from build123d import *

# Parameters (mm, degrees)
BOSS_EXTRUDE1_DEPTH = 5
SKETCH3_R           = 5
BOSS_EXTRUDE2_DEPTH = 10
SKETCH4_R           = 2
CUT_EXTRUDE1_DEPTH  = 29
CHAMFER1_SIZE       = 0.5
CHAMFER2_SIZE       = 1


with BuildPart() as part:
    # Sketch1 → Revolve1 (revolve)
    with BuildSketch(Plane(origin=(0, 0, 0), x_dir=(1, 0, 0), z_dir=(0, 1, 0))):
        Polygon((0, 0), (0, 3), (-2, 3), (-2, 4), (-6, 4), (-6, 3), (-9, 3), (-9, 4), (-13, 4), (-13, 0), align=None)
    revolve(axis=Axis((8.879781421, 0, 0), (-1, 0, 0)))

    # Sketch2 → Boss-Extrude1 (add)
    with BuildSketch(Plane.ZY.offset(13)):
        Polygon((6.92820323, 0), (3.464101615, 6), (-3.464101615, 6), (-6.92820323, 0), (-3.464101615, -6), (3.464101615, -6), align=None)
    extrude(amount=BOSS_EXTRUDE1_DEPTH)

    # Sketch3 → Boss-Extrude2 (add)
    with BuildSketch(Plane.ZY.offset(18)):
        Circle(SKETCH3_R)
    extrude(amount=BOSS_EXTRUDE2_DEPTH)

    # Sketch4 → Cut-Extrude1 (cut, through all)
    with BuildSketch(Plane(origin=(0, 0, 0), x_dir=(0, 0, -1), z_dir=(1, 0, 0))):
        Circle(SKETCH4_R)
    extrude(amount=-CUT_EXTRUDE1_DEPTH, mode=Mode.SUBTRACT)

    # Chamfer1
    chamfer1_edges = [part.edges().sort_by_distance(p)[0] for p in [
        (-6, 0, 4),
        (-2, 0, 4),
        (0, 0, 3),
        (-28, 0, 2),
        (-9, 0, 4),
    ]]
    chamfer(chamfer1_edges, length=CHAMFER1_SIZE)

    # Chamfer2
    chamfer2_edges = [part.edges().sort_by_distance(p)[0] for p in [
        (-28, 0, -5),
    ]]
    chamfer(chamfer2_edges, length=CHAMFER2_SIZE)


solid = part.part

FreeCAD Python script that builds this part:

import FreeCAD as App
import Part
import Sketcher

V = App.Vector
Q = App.Units.Quantity


def edges_at(feature, points):
    """Names of the edges that pass closest to the given points."""
    edges = feature.Shape.Edges
    near = lambda p: min(range(len(edges)), key=lambda i: edges[i].distToShape(Part.Vertex(*p))[0])
    return sorted({f"Edge{near(p) + 1}" for p in points})

doc = App.newDocument("Part")
params = doc.addObject("Spreadsheet::Sheet", "Params")
for row, (alias, value) in enumerate([
    ("sketch1_width", "2 mm"),
    ("sketch1_width2", "4 mm"),
    ("sketch1_width3", "3 mm"),
    ("revolution_angle", "360 deg"),
    ("pad1_length", "5 mm"),
    ("sketch3_diameter", "10 mm"),
    ("pad2_length", "10 mm"),
    ("sketch4_diameter", "4 mm"),
    ("chamfer_size", "0.5 mm"),
    ("chamfer2_size", "1 mm"),
], start=1):
    params.set(f"A{row}", alias)
    params.set(f"B{row}", "=" + value)
    params.setAlias(f"B{row}", alias)

body = doc.addObject("PartDesign::Body", "Body")

sketch1 = doc.addObject("Sketcher::SketchObject", "Sketch")
body.addObject(sketch1)
sketch1.AttachmentSupport = (doc.XZ_Plane, [""])
sketch1.MapMode = "FlatFace"
sketch1.addGeometry([
    Part.LineSegment(V(0, 0, 0), V(0, -3, 0)),
    Part.LineSegment(V(0, -3, 0), V(-2, -3, 0)),
    Part.LineSegment(V(-2, -3, 0), V(-2, -4, 0)),
    Part.LineSegment(V(-2, -4, 0), V(-6, -4, 0)),
    Part.LineSegment(V(-6, -4, 0), V(-6, -3, 0)),
    Part.LineSegment(V(-6, -3, 0), V(-9, -3, 0)),
    Part.LineSegment(V(-9, -3, 0), V(-9, -4, 0)),
    Part.LineSegment(V(-9, -4, 0), V(-13, -4, 0)),
    Part.LineSegment(V(-13, -4, 0), V(-13, 0, 0)),
    Part.LineSegment(V(-13, 0, 0), V(0, 0, 0)),
], False)
sketch1.addConstraint([
    Sketcher.Constraint("Coincident", 0, 2, 1, 1),
    Sketcher.Constraint("Coincident", 1, 2, 2, 1),
    Sketcher.Constraint("Coincident", 2, 2, 3, 1),
    Sketcher.Constraint("Coincident", 3, 2, 4, 1),
    Sketcher.Constraint("Coincident", 4, 2, 5, 1),
    Sketcher.Constraint("Coincident", 5, 2, 6, 1),
    Sketcher.Constraint("Coincident", 6, 2, 7, 1),
    Sketcher.Constraint("Coincident", 7, 2, 8, 1),
    Sketcher.Constraint("Coincident", 8, 2, 9, 1),
    Sketcher.Constraint("Coincident", 9, 2, 0, 1),
    Sketcher.Constraint("Vertical", 0),
    Sketcher.Constraint("Horizontal", 1),
    Sketcher.Constraint("Vertical", 2),
    Sketcher.Constraint("Horizontal", 3),
    Sketcher.Constraint("Vertical", 4),
    Sketcher.Constraint("Horizontal", 5),
    Sketcher.Constraint("Vertical", 6),
    Sketcher.Constraint("Horizontal", 7),
    Sketcher.Constraint("Vertical", 8),
    Sketcher.Constraint("Horizontal", 9),
    Sketcher.Constraint("Coincident", 9, 2, -1, 1),
    Sketcher.Constraint("Horizontal", 1, 2, 4, 2),
    Sketcher.Constraint("Horizontal", 3, 2, 6, 2),
    Sketcher.Constraint("Equal", 3, 7),
    Sketcher.Constraint("Equal", 5, 0),
    Sketcher.Constraint("Equal", 7, 8),
    Sketcher.Constraint("DistanceX", 1, 2, 1, 1, 2.0),
    Sketcher.Constraint("DistanceX", 3, 2, 3, 1, 4.0),
    Sketcher.Constraint("DistanceX", 5, 2, 5, 1, 3.0),
])
sketch1.setExpression("Constraints[26]", "Params.sketch1_width")
sketch1.setExpression("Constraints[27]", "Params.sketch1_width2")
sketch1.setExpression("Constraints[28]", "Params.sketch1_width3")
revolution = doc.addObject("PartDesign::Revolution", "Revolution")
body.addObject(revolution)
revolution.Profile = sketch1
revolution.ReferenceAxis = (sketch1, ["H_Axis"])
revolution.setExpression("Angle", "Params.revolution_angle")

sketch2 = doc.addObject("Sketcher::SketchObject", "Sketch001")
body.addObject(sketch2)
sketch2.AttachmentSupport = (doc.YZ_Plane, [""])
sketch2.MapMode = "FlatFace"
sketch2.AttachmentOffset = App.Placement(V(0, 0, -13), App.Rotation())
sketch2.addGeometry([
    Part.LineSegment(V(0, 7, 0), V(6, 3, 0)),
    Part.LineSegment(V(6, 3, 0), V(6, -3, 0)),
    Part.LineSegment(V(6, -3, 0), V(0, -7, 0)),
    Part.LineSegment(V(0, -7, 0), V(-6, -3, 0)),
    Part.LineSegment(V(-6, -3, 0), V(-6, 3, 0)),
    Part.LineSegment(V(-6, 3, 0), V(0, 7, 0)),
], False)
sketch2.addConstraint([
    Sketcher.Constraint("Coincident", 0, 2, 1, 1),
    Sketcher.Constraint("Coincident", 1, 2, 2, 1),
    Sketcher.Constraint("Coincident", 2, 2, 3, 1),
    Sketcher.Constraint("Coincident", 3, 2, 4, 1),
    Sketcher.Constraint("Coincident", 4, 2, 5, 1),
    Sketcher.Constraint("Coincident", 5, 2, 0, 1),
    Sketcher.Constraint("Vertical", 1),
    Sketcher.Constraint("Vertical", 4),
    Sketcher.Constraint("Symmetric", 0, 2, 3, 2, -1, 1),
    Sketcher.Constraint("Symmetric", 2, 2, 5, 2, -1, 1),
    Sketcher.Constraint("PointOnObject", 2, 2, -2),
    Sketcher.Constraint("Parallel", 2, 5),
    Sketcher.Constraint("Horizontal", 1, 2, 3, 2),
    Sketcher.Constraint("Angle", 0, Q("-30 deg")),
    Sketcher.Constraint("DistanceX", -1, 1, 0, 2, 6.0),
    Sketcher.Constraint("DistanceY", -1, 1, 0, 2, 3.464102),
])
pad1 = doc.addObject("PartDesign::Pad", "Pad")
body.addObject(pad1)
pad1.Profile = sketch2
pad1.setExpression("Length", "Params.pad1_length")
pad1.Reversed = True

sketch3 = doc.addObject("Sketcher::SketchObject", "Sketch002")
body.addObject(sketch3)
sketch3.AttachmentSupport = (doc.YZ_Plane, [""])
sketch3.MapMode = "FlatFace"
sketch3.AttachmentOffset = App.Placement(V(0, 0, -18), App.Rotation())
sketch3.addGeometry(Part.Circle(V(0, 0, 0), V(0, 0, 1), 5), False)
sketch3.addConstraint([
    Sketcher.Constraint("Coincident", 0, 3, -1, 1),
    Sketcher.Constraint("Diameter", 0, 10.0),
])
sketch3.setExpression("Constraints[1]", "Params.sketch3_diameter")
pad2 = doc.addObject("PartDesign::Pad", "Pad001")
body.addObject(pad2)
pad2.Profile = sketch3
pad2.setExpression("Length", "Params.pad2_length")
pad2.Reversed = True

sketch4 = doc.addObject("Sketcher::SketchObject", "Sketch003")
body.addObject(sketch4)
sketch4.AttachmentSupport = (doc.YZ_Plane, [""])
sketch4.MapMode = "FlatFace"
sketch4.addGeometry(Part.Circle(V(0, 0, 0), V(0, 0, 1), 2), False)
sketch4.addConstraint([
    Sketcher.Constraint("Coincident", 0, 3, -1, 1),
    Sketcher.Constraint("Diameter", 0, 4.0),
])
sketch4.setExpression("Constraints[1]", "Params.sketch4_diameter")
pocket1 = doc.addObject("PartDesign::Pocket", "Pocket")
body.addObject(pocket1)
pocket1.Profile = sketch4
pocket1.Type = "ThroughAll"
doc.recompute()

chamfer = doc.addObject("PartDesign::Chamfer", "Chamfer")
body.addObject(chamfer)
chamfer.Base = (pocket1, edges_at(pocket1, [
    (-6, 0, 4),
    (-2, 0, 4),
    (0, 0, 3),
    (-28, 0, 2),
    (-9, 0, 4),
]))
chamfer.setExpression("Size", "Params.chamfer_size")
doc.recompute()

chamfer2 = doc.addObject("PartDesign::Chamfer", "Chamfer001")
body.addObject(chamfer2)
chamfer2.Base = (chamfer, edges_at(chamfer, [(-28, 0, -5)]))
chamfer2.setExpression("Size", "Params.chamfer2_size")

doc.recompute()
